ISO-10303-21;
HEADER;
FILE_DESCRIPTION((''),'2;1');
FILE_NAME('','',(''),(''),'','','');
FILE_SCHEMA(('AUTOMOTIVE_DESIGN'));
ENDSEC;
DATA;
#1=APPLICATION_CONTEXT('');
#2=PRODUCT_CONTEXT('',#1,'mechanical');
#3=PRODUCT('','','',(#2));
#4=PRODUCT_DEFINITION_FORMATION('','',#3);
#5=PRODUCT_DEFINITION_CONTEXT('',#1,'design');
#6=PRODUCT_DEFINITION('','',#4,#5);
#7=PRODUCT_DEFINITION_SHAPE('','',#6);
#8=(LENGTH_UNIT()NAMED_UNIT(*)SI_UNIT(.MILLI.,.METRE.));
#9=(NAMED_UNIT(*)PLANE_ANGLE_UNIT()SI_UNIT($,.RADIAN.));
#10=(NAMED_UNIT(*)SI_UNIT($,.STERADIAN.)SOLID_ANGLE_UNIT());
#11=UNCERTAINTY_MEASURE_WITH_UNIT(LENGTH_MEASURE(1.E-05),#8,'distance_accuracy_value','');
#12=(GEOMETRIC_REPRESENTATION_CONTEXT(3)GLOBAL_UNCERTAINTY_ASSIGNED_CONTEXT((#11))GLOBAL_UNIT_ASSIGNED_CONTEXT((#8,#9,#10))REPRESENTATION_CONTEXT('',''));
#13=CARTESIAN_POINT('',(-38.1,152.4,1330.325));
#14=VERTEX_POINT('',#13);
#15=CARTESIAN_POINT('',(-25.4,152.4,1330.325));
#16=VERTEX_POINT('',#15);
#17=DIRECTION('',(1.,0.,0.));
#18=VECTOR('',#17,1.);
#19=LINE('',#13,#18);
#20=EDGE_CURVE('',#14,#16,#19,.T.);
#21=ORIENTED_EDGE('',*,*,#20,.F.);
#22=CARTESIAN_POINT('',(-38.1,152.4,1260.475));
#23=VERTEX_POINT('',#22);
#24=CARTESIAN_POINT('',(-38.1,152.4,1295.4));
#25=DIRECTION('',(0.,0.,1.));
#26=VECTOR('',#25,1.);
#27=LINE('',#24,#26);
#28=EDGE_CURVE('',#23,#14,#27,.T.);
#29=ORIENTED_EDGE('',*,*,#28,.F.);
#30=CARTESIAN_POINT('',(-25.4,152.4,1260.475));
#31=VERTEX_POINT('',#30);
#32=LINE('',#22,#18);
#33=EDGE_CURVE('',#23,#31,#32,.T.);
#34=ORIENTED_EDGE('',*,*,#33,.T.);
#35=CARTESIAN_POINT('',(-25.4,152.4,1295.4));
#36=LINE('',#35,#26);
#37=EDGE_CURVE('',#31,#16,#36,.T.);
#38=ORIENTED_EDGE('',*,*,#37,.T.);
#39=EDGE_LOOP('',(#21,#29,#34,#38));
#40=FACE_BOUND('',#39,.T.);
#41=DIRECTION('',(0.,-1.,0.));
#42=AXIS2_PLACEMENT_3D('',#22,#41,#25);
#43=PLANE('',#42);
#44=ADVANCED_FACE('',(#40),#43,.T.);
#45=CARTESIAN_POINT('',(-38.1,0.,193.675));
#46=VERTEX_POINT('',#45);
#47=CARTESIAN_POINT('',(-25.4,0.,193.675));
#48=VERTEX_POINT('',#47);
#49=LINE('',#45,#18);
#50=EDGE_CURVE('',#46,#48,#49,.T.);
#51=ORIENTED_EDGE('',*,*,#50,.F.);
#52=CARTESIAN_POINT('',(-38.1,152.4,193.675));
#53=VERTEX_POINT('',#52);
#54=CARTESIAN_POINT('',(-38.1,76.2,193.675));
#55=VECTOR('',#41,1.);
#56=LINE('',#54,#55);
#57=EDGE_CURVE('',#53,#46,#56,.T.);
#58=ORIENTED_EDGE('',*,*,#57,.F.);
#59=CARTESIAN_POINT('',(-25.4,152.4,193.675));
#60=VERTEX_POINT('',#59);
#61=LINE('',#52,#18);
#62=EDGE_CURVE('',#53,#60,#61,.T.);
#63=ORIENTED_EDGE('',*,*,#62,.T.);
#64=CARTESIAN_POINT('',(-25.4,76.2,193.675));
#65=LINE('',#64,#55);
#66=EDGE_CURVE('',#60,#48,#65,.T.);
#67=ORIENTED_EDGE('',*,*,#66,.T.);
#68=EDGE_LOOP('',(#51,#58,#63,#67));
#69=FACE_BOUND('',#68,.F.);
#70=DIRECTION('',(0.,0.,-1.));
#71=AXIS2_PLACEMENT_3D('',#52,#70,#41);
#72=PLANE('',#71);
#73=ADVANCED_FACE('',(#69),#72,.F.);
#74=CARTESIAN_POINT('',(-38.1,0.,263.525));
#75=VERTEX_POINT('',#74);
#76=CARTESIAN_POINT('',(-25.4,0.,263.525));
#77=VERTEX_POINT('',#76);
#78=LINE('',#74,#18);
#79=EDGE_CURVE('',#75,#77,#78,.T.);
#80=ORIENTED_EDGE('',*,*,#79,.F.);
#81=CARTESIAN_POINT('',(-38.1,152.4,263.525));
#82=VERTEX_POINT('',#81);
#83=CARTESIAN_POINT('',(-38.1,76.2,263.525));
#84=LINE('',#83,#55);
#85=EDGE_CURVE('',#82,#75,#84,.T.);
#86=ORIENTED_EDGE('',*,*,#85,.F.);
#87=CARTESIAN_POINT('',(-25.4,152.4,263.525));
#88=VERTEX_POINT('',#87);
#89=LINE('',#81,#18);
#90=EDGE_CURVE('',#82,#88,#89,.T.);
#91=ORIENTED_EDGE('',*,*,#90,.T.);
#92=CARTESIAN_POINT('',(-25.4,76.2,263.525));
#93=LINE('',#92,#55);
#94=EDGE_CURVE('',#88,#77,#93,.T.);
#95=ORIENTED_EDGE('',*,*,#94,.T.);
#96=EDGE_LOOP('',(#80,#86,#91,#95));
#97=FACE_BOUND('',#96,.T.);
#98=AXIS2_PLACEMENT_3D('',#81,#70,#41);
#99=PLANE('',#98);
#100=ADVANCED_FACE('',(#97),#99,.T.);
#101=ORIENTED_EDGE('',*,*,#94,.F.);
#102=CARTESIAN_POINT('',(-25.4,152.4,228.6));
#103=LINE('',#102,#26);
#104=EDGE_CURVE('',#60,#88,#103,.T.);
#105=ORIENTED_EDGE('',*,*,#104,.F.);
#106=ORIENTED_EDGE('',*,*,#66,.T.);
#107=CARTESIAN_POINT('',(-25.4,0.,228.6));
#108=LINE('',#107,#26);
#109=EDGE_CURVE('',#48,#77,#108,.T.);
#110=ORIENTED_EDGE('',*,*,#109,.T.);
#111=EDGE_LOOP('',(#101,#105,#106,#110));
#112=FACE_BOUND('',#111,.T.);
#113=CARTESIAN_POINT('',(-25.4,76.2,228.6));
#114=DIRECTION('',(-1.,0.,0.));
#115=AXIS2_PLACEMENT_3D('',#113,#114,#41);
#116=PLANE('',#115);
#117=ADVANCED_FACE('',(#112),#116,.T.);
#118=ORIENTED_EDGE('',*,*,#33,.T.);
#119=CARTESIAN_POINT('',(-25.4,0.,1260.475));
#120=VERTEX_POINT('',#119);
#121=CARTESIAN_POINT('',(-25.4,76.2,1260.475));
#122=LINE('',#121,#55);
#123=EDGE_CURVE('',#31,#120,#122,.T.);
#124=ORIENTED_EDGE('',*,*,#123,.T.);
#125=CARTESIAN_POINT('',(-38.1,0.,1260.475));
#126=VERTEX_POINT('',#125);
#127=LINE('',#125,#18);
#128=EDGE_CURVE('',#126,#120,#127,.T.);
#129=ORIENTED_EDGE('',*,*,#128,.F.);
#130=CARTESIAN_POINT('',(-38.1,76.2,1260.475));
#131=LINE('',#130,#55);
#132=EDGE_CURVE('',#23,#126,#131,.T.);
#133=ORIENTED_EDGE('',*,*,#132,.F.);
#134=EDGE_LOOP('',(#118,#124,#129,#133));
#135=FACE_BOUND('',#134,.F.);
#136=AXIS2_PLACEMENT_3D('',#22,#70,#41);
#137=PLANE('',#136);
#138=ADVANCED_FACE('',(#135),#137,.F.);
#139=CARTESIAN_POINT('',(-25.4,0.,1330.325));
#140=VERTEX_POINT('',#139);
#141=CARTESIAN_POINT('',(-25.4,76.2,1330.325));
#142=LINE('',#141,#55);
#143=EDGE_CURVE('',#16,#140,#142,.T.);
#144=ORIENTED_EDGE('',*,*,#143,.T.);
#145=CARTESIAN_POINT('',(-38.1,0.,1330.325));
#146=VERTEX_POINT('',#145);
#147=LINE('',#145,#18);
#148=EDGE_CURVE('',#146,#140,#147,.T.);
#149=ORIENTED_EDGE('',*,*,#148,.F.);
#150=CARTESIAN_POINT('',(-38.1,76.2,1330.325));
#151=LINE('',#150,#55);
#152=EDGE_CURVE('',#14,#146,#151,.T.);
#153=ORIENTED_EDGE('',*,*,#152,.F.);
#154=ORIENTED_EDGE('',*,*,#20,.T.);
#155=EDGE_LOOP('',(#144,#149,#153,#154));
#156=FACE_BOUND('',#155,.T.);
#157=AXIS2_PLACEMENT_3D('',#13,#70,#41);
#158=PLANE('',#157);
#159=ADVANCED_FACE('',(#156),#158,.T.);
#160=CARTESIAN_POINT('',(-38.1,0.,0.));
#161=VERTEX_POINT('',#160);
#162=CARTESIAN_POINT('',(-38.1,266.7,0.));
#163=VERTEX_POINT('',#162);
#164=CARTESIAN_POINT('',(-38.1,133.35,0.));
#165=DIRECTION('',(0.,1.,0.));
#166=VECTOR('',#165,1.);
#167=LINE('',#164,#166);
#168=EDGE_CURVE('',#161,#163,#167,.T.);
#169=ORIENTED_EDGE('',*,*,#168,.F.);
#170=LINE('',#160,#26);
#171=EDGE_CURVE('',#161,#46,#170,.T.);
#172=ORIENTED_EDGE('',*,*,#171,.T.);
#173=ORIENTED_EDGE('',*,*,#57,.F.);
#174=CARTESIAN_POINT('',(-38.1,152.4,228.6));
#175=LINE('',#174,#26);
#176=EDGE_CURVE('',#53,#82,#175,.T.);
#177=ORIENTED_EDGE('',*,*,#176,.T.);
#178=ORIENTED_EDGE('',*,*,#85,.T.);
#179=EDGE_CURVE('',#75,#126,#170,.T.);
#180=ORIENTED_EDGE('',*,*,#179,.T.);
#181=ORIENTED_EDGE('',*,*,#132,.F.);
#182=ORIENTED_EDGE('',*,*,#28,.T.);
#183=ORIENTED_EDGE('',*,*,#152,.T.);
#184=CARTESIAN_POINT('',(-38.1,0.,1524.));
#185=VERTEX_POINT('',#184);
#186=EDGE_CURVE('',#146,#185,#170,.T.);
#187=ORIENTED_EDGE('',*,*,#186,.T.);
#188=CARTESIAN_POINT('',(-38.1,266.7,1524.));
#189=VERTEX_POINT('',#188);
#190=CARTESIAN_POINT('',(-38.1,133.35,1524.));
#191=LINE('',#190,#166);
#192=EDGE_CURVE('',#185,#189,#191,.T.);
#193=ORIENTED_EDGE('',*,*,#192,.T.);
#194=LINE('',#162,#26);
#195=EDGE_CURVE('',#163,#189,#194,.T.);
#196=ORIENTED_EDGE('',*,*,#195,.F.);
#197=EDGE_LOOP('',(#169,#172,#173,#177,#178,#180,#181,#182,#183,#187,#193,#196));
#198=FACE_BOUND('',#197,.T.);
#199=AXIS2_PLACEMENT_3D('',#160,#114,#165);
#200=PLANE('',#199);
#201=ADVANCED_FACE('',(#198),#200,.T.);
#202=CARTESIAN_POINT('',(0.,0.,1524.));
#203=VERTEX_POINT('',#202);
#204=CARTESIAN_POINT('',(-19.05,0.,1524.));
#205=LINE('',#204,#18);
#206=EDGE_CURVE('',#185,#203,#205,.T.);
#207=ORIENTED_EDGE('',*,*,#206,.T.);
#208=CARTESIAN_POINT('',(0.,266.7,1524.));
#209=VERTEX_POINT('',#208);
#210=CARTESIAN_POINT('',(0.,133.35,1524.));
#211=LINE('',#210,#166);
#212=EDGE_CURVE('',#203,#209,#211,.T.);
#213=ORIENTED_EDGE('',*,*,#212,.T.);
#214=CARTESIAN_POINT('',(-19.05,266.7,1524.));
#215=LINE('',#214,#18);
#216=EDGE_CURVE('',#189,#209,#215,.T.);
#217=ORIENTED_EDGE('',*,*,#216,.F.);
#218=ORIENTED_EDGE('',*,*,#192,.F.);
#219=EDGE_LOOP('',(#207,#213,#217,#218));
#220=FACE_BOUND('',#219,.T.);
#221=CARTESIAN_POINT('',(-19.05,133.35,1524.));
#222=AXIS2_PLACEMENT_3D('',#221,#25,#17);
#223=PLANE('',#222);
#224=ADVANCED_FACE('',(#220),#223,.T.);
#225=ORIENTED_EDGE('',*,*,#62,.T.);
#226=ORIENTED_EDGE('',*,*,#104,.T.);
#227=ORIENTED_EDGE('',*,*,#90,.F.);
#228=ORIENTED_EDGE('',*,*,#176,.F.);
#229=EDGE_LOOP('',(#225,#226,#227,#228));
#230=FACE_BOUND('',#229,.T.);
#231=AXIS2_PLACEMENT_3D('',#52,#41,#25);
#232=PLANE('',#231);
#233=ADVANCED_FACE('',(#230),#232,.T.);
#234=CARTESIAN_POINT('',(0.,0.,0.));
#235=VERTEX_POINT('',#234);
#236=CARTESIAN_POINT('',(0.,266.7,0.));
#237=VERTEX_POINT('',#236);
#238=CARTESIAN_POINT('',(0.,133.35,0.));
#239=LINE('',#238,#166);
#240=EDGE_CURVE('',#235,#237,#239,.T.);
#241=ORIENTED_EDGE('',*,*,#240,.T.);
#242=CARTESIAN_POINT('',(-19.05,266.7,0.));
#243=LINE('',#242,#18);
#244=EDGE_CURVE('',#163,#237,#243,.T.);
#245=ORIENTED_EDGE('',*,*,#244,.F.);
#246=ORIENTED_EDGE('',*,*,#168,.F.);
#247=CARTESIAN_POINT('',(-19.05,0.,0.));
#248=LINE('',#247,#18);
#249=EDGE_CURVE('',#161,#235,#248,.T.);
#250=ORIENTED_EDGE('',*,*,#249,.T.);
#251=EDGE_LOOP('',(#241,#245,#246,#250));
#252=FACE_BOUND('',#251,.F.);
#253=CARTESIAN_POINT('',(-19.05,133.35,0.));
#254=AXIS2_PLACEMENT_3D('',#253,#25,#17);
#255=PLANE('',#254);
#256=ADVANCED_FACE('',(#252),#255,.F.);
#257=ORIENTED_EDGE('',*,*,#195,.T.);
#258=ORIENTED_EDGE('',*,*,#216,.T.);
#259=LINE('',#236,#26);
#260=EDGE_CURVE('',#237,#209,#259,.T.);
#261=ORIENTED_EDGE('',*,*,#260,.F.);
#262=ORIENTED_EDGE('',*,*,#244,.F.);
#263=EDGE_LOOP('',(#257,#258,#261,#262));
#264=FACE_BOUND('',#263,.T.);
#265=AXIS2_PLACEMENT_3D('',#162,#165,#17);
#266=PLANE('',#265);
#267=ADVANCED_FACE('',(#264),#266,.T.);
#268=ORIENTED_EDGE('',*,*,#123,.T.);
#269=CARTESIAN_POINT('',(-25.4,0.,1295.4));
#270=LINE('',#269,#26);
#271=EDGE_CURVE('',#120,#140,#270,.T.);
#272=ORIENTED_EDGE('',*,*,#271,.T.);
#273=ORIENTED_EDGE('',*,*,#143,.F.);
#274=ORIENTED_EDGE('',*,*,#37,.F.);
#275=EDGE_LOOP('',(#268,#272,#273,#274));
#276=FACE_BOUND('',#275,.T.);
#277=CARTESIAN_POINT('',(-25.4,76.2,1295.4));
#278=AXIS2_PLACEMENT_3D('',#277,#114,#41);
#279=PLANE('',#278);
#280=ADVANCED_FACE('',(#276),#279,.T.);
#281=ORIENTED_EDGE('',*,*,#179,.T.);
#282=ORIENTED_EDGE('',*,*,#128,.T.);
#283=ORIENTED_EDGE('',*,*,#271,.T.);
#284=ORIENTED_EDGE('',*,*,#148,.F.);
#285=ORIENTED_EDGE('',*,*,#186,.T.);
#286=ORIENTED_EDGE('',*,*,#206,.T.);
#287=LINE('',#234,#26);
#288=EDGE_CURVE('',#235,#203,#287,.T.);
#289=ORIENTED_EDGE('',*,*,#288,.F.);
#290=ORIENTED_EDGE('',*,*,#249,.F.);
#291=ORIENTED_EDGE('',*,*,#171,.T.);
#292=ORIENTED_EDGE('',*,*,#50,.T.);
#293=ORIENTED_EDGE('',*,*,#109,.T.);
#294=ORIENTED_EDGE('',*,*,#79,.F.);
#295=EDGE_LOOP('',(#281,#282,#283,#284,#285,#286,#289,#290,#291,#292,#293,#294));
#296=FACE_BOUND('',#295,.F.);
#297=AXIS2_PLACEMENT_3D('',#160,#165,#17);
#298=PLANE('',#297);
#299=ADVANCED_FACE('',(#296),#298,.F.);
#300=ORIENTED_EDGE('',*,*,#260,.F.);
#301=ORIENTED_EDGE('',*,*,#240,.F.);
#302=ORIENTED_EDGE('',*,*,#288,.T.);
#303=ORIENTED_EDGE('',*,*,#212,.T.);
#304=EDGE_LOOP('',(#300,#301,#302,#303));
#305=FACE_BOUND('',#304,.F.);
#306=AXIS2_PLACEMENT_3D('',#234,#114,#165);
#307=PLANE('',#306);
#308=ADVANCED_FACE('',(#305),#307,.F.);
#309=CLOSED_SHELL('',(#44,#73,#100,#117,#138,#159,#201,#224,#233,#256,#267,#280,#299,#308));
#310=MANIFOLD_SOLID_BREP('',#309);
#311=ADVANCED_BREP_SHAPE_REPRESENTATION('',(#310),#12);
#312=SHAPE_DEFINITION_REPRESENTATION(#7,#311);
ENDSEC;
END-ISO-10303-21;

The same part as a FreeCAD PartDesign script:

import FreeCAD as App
import Part
import Sketcher
Q = App.Units.Quantity


def add_polygon(sketch, points):
    """Adds a closed chain of lines whose ends are joined by coincident constraints."""
    first, n = sketch.GeometryCount, len(points)
    for a, b in zip(points, points[1:] + points[:1]):
        sketch.addGeometry(Part.LineSegment(App.Vector(*a, 0), App.Vector(*b, 0)), False)
    for i in range(n):
        sketch.addConstraint(Sketcher.Constraint("Coincident", first + i, 2, first + (i + 1) % n, 1))

doc = App.newDocument("Part")
body = doc.addObject("PartDesign::Body", "Body")

# Sketch on XY plane
sketch1 = doc.addObject("Sketcher::SketchObject", "Sketch")
body.addObject(sketch1)
sketch1.AttachmentSupport = (doc.XY_Plane, [""])
sketch1.MapMode = "FlatFace"
add_polygon(sketch1, [(-38, 267), (-38, 0), (0, 0), (0, 267)])  # lines 0-3
sketch1.addConstraint([
    Sketcher.Constraint("Vertical", 0),
    Sketcher.Constraint("Horizontal", 1),
    Sketcher.Constraint("Vertical", 2),
    Sketcher.Constraint("Horizontal", 3),
    Sketcher.Constraint("Coincident", 1, 2, -1, 1),
    Sketcher.Constraint("DistanceX", 1, 1, 1, 2, Q("1.5 in")),
    Sketcher.Constraint("DistanceY", 0, 2, 0, 1, Q("10.5 in")),
])
pad1 = doc.addObject("PartDesign::Pad", "Pad")
body.addObject(pad1)
pad1.Profile = sketch1
pad1.Length = Q("60 in")

# Sketch on YZ plane
sketch2 = doc.addObject("Sketcher::SketchObject", "Sketch001")
body.addObject(sketch2)
sketch2.AttachmentSupport = (doc.YZ_Plane, [""])
sketch2.MapMode = "FlatFace"
sketch2.AttachmentOffset = App.Placement(App.Vector(0, 0, -1.5 * 25.4), App.Rotation())
add_polygon(sketch2, [(152, 264), (152, 194), (0, 194), (0, 264)])  # lines 0-3
add_polygon(sketch2, [(152, 1330), (152, 1260), (0, 1260), (0, 1330)])  # lines 4-7
sketch2.addConstraint([
    Sketcher.Constraint("Vertical", 0),
    Sketcher.Constraint("Horizontal", 1),
    Sketcher.Constraint("Vertical", 2),
    Sketcher.Constraint("Horizontal", 3),
    Sketcher.Constraint("Vertical", 4),
    Sketcher.Constraint("Horizontal", 5),
    Sketcher.Constraint("Vertical", 6),
    Sketcher.Constraint("Horizontal", 7),
    Sketcher.Constraint("PointOnObject", 1, 2, -2),
    Sketcher.Constraint("PointOnObject", 5, 2, -2),
    Sketcher.Constraint("Vertical", 3, 2, 4, 2),
    Sketcher.Constraint("Equal", 2, 4),
    Sketcher.Constraint("DistanceX", 1, 2, 1, 1, Q("6 in")),
    Sketcher.Constraint("DistanceY", 0, 2, 4, 2, Q("42 in")),
    Sketcher.Constraint("DistanceY", 0, 2, 0, 1, Q("2.75 in")),
    Sketcher.Constraint("DistanceY", -1, 1, 0, 2, Q("7.625 in")),
])
pocket1 = doc.addObject("PartDesign::Pocket", "Pocket")
body.addObject(pocket1)
pocket1.Profile = sketch2
pocket1.Length = Q("0.5 in")
pocket1.Reversed = True

doc.recompute()
